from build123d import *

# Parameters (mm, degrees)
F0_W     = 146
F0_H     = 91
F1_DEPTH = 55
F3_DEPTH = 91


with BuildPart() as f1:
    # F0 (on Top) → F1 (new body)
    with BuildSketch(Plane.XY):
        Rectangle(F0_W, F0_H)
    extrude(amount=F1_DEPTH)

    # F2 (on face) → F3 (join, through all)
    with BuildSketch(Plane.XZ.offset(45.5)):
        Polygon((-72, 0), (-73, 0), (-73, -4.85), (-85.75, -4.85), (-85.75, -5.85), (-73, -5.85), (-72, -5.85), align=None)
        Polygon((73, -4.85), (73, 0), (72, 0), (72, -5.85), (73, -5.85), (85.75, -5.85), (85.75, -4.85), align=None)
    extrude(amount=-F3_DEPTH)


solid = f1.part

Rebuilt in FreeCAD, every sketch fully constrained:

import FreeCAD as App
import Part
import Sketcher
from FreeCAD import Vector
Q = App.Units.Quantity


def add_polygon(sketch, points):
    """Adds a closed chain of lines whose ends are joined by coincident constraints."""
    first, n = sketch.GeometryCount, len(points)
    for a, b in zip(points, points[1:] + points[:1]):
        sketch.addGeometry(Part.LineSegment(App.Vector(*a, 0), App.Vector(*b, 0)), False)
    for i in range(n):
        sketch.addConstraint(Sketcher.Constraint("Coincident", first + i, 2, first + (i + 1) % n, 1))

doc = App.newDocument("Part")
body = doc.addObject("PartDesign::Body", "Body")

# Sketch on XY plane
sketch1 = body.newObject("Sketcher::SketchObject", "Sketch")
sketch1.AttachmentSupport = (doc.getObject("XY_Plane"), [""])
sketch1.MapMode = "FlatFace"
add_polygon(sketch1, [(-73, 46), (-73, -46), (73, -46), (73, 46)])  # lines 0-3
sketch1.addConstraint([
    Sketcher.Constraint("Vertical", 0),
    Sketcher.Constraint("Horizontal", 1),
    Sketcher.Constraint("Vertical", 2),
    Sketcher.Constraint("Horizontal", 3),
    Sketcher.Constraint("Symmetric", 0, 2, 2, 2, -1, 1),
    Sketcher.Constraint("DistanceX", 1, 1, 1, 2, Q("146 mm")),
    Sketcher.Constraint("DistanceY", 0, 2, 0, 1, Q("91 mm")),
])
pad1 = body.newObject("PartDesign::Pad", "Pad")
pad1.Profile = sketch1
pad1.Length = 55

# Sketch on XZ plane
sketch2 = body.newObject("Sketcher::SketchObject", "Sketch001")
sketch2.AttachmentSupport = (doc.getObject("XZ_Plane"), [""])
sketch2.MapMode = "FlatFace"
sketch2.AttachmentOffset = App.Placement(Vector(0, 0, 45.5), App.Rotation())
add_polygon(sketch2, [(-72, 0), (-73, 0), (-73, -4.8), (-85.8, -4.8), (-85.8, -5.8), (-72, -5.8)])  # lines 0-5
add_polygon(sketch2, [(73, -4.8), (73, 0), (72, 0), (72, -5.8), (85.8, -5.8), (85.8, -4.8)])  # lines 6-11
sketch2.addConstraint([
    Sketcher.Constraint("Horizontal", 0),
    Sketcher.Constraint("Vertical", 1),
    Sketcher.Constraint("Horizontal", 2),
    Sketcher.Constraint("Vertical", 3),
    Sketcher.Constraint("Horizontal", 4),
    Sketcher.Constraint("Vertical", 5),
    Sketcher.Constraint("Vertical", 6),
    Sketcher.Constraint("Horizontal", 7),
    Sketcher.Constraint("Vertical", 8),
    Sketcher.Constraint("Horizontal", 9),
    Sketcher.Constraint("Vertical", 10),
    Sketcher.Constraint("Horizontal", 11),
    Sketcher.Constraint("Symmetric", 0, 2, 6, 2, -1, 1),
    Sketcher.Constraint("Symmetric", 5, 2, 7, 2, -2),
    Sketcher.Constraint("Symmetric", 3, 2, 9, 2, -2),
    Sketcher.Constraint("Horizontal", 2, 2, 10, 2),
    Sketcher.Constraint("Equal", 7, 3),
    Sketcher.Constraint("DistanceX", 0, 2, 0, 1, Q("1 mm")),
    Sketcher.Constraint("DistanceX", 0, 2, -1, 1, Q("73 mm")),
    Sketcher.Constraint("DistanceX", 2, 2, 2, 1, Q("12.75 mm")),
    Sketcher.Constraint("DistanceY", 1, 2, 1, 1, Q("4.85 mm")),
])
pad2 = body.newObject("PartDesign::Pad", "Pad001")
pad2.Profile = sketch2
pad2.Length = 91
pad2.Reversed = True

doc.recompute()
